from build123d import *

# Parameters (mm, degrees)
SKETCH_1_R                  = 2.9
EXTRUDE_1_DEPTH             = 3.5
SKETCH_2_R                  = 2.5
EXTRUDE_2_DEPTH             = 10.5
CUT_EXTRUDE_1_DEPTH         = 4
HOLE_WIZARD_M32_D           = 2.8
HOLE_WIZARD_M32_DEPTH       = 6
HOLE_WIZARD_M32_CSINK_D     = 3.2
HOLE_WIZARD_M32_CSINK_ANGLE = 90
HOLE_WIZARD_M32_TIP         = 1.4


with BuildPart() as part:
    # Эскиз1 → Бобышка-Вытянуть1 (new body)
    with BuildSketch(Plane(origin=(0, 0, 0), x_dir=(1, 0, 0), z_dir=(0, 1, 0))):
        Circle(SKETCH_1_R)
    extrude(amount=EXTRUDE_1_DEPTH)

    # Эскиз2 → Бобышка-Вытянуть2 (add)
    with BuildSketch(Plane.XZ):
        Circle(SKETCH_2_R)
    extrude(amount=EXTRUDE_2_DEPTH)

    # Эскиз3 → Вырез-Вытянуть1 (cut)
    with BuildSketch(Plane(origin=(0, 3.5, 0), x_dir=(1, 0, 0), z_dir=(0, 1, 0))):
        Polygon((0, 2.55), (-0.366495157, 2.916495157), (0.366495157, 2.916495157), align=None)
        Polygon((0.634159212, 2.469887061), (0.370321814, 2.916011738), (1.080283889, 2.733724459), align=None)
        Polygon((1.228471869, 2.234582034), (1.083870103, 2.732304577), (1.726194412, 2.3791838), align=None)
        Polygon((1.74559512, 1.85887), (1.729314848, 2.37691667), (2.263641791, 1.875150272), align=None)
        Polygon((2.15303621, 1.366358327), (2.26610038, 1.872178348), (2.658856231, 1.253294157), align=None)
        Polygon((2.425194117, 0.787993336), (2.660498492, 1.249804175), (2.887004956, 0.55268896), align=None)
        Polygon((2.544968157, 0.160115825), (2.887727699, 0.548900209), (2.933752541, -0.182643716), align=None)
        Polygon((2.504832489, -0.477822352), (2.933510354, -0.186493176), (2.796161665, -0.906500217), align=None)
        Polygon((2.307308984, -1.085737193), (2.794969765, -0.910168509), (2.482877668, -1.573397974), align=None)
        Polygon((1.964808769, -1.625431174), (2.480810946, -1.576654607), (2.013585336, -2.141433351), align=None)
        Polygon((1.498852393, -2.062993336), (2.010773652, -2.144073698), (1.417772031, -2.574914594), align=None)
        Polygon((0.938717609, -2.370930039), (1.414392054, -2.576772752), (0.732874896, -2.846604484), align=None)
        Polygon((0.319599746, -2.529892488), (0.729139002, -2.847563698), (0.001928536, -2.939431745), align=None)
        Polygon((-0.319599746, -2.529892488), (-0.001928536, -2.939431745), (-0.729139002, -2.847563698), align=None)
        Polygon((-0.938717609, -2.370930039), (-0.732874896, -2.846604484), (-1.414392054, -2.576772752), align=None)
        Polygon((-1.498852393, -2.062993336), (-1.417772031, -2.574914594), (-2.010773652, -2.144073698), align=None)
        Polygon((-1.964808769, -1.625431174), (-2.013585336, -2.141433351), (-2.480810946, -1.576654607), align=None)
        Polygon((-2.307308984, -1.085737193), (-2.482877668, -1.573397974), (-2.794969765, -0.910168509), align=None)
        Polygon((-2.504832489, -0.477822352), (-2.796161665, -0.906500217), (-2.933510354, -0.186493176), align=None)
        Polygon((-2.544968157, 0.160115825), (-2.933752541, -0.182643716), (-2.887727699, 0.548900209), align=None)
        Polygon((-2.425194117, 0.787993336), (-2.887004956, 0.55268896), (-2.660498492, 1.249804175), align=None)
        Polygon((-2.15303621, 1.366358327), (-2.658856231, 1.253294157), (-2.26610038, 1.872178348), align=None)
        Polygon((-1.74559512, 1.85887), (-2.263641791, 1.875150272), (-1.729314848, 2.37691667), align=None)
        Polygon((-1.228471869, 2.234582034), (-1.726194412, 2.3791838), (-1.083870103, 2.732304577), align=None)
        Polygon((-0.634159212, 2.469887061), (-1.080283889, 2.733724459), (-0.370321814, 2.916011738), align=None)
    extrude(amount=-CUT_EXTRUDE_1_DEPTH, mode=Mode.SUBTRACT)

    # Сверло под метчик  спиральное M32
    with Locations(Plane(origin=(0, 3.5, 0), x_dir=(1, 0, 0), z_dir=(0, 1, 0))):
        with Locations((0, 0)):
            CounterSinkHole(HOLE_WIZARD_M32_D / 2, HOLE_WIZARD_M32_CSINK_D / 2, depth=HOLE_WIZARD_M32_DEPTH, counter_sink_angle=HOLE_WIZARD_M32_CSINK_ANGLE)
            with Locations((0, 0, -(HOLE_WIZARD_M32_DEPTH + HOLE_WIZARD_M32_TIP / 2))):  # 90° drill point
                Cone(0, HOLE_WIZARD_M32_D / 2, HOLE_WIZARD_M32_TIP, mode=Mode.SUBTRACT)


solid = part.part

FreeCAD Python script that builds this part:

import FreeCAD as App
import Part
import Sketcher

V = App.Vector
Q = App.Units.Quantity


def add_polygon(sketch, points):
    """Adds a closed chain of lines whose ends are joined by coincident constraints."""
    first, n = sketch.GeometryCount, len(points)
    for a, b in zip(points, points[1:] + points[:1]):
        sketch.addGeometry(Part.LineSegment(App.Vector(*a, 0), App.Vector(*b, 0)), False)
    for i in range(n):
        sketch.addConstraint(Sketcher.Constraint("Coincident", first + i, 2, first + (i + 1) % n, 1))

doc = App.newDocument("Part")
params = doc.addObject("Spreadsheet::Sheet", "Params")
for row, (alias, value) in enumerate([
    ("sketch1_diameter", "5.8 mm"),
    ("pad1_length", "3.5 mm"),
    ("sketch2_diameter", "5 mm"),
    ("pad2_length", "10.5 mm"),
    ("pocket1_length", "4 mm"),
    ("sketch4_diameter", "2.8 mm"),
    ("hole_diameter", "2.8 mm"),
    ("hole_depth", "6 mm"),
    ("hole_csink_diameter", "3.2 mm"),
], start=1):
    params.set(f"A{row}", alias)
    params.set(f"B{row}", "=" + value)
    params.setAlias(f"B{row}", alias)

body = doc.addObject("PartDesign::Body", "Body")

# Sketch on XZ plane
sketch1 = body.newObject("Sketcher::SketchObject", "Sketch")
sketch1.AttachmentSupport = (doc.getObject("XZ_Plane"), [""])
sketch1.MapMode = "FlatFace"
sketch1.addGeometry(Part.Circle(V(0, 0, 0), V(0, 0, 1), 2.9), False)
sketch1.addConstraint(Sketcher.Constraint("Coincident", 0, 3, -1, 1))
sketch1.addConstraint(Sketcher.Constraint("Diameter", 0, 5.8))
sketch1.setExpression("Constraints[1]", "Params.sketch1_diameter")
pad1 = body.newObject("PartDesign::Pad", "Pad")
pad1.Profile = sketch1
pad1.setExpression("Length", "Params.pad1_length")
pad1.Reversed = True

# Sketch on XZ plane
sketch2 = body.newObject("Sketcher::SketchObject", "Sketch001")
sketch2.AttachmentSupport = (doc.getObject("XZ_Plane"), [""])
sketch2.MapMode = "FlatFace"
sketch2.addGeometry(Part.Circle(V(0, 0, 0), V(0, 0, 1), 2.5), False)
sketch2.addConstraint(Sketcher.Constraint("Coincident", 0, 3, -1, 1))
sketch2.addConstraint(Sketcher.Constraint("Diameter", 0, 5.0))
sketch2.setExpression("Constraints[1]", "Params.sketch2_diameter")
pad2 = body.newObject("PartDesign::Pad", "Pad001")
pad2.Profile = sketch2
pad2.setExpression("Length", "Params.pad2_length")

# Sketch on XZ plane
sketch3 = body.newObject("Sketcher::SketchObject", "Sketch002")
sketch3.AttachmentSupport = (doc.getObject("XZ_Plane"), [""])
sketch3.MapMode = "FlatFace"
sketch3.AttachmentOffset = App.Placement(V(0, 0, -3.5), App.Rotation())
add_polygon(sketch3, [(-0.366495, -2.916495), (0, -2.55), (0.366495, -2.916495)])  # lines 0-2
add_polygon(sketch3, [(0.370322, -2.916012), (0.634159, -2.469887), (1.080284, -2.733724)])  # lines 3-5
add_polygon(sketch3, [(1.08387, -2.732305), (1.228472, -2.234582), (1.726194, -2.379184)])  # lines 6-8
add_polygon(sketch3, [(1.729315, -2.376917), (1.745595, -1.85887), (2.263642, -1.87515)])  # lines 9-11
add_polygon(sketch3, [(2.2661, -1.872178), (2.153036, -1.366358), (2.658856, -1.253294)])  # lines 12-14
add_polygon(sketch3, [(2.660498, -1.249804), (2.425194, -0.787993), (2.887005, -0.552689)])  # lines 15-17
add_polygon(sketch3, [(2.887728, -0.5489), (2.544968, -0.160116), (2.933753, 0.182644)])  # lines 18-20
add_polygon(sketch3, [(2.93351, 0.186493), (2.504832, 0.477822), (2.796162, 0.9065)])  # lines 21-23
add_polygon(sketch3, [(2.79497, 0.910169), (2.307309, 1.085737), (2.482878, 1.573398)])  # lines 24-26
add_polygon(sketch3, [(2.480811, 1.576655), (1.964809, 1.625431), (2.013585, 2.141433)])  # lines 27-29
add_polygon(sketch3, [(2.010774, 2.144074), (1.498852, 2.062993), (1.417772, 2.574915)])  # lines 30-32
add_polygon(sketch3, [(1.414392, 2.576773), (0.938718, 2.37093), (0.732875, 2.846604)])  # lines 33-35
add_polygon(sketch3, [(0.729139, 2.847564), (0.3196, 2.529892), (0.001929, 2.939432)])  # lines 36-38
add_polygon(sketch3, [(-0.001929, 2.939432), (-0.3196, 2.529892), (-0.729139, 2.847564)])  # lines 39-41
add_polygon(sketch3, [(-0.732875, 2.846604), (-0.938718, 2.37093), (-1.414392, 2.576773)])  # lines 42-44
add_polygon(sketch3, [(-1.417772, 2.574915), (-1.498852, 2.062993), (-2.010774, 2.144074)])  # lines 45-47
add_polygon(sketch3, [(-2.013585, 2.141433), (-1.964809, 1.625431), (-2.480811, 1.576655)])  # lines 48-50
add_polygon(sketch3, [(-2.482878, 1.573398), (-2.307309, 1.085737), (-2.79497, 0.910169)])  # lines 51-53
add_polygon(sketch3, [(-2.796162, 0.9065), (-2.504832, 0.477822), (-2.93351, 0.186493)])  # lines 54-56
add_polygon(sketch3, [(-2.933753, 0.182644), (-2.544968, -0.160116), (-2.887728, -0.5489)])  # lines 57-59
add_polygon(sketch3, [(-2.887005, -0.552689), (-2.425194, -0.787993), (-2.660498, -1.249804)])  # lines 60-62
add_polygon(sketch3, [(-2.658856, -1.253294), (-2.153036, -1.366358), (-2.2661, -1.872178)])  # lines 63-65
add_polygon(sketch3, [(-2.263642, -1.87515), (-1.745595, -1.85887), (-1.729315, -2.376917)])  # lines 66-68
add_polygon(sketch3, [(-1.726194, -2.379184), (-1.228472, -2.234582), (-1.08387, -2.732305)])  # lines 69-71
add_polygon(sketch3, [(-1.080284, -2.733724), (-0.634159, -2.469887), (-0.370322, -2.916012)])  # lines 72-74
sketch3.addConstraint(Sketcher.Constraint("Horizontal", 2))
sketch3.addConstraint(Sketcher.Constraint("Symmetric", 36, 2, 39, 2, -2))
sketch3.addConstraint(Sketcher.Constraint("Symmetric", 38, 2, 40, 2, -2))
sketch3.addConstraint(Sketcher.Constraint("Symmetric", 37, 2, 41, 2, -2))
sketch3.addConstraint(Sketcher.Constraint("Symmetric", 33, 2, 42, 2, -2))
sketch3.addConstraint(Sketcher.Constraint("Symmetric", 35, 2, 43, 2, -2))
sketch3.addConstraint(Sketcher.Constraint("Symmetric", 34, 2, 44, 2, -2))
sketch3.addConstraint(Sketcher.Constraint("Symmetric", 30, 2, 45, 2, -2))
sketch3.addConstraint(Sketcher.Constraint("Symmetric", 32, 2, 46, 2, -2))
sketch3.addConstraint(Sketcher.Constraint("Symmetric", 31, 2, 47, 2, -2))
sketch3.addConstraint(Sketcher.Constraint("Symmetric", 27, 2, 48, 2, -2))
sketch3.addConstraint(Sketcher.Constraint("Symmetric", 29, 2, 49, 2, -2))
sketch3.addConstraint(Sketcher.Constraint("Symmetric", 28, 2, 50, 2, -2))
sketch3.addConstraint(Sketcher.Constraint("Symmetric", 24, 2, 51, 2, -2))
sketch3.addConstraint(Sketcher.Constraint("Symmetric", 26, 2, 52, 2, -2))
sketch3.addConstraint(Sketcher.Constraint("Symmetric", 25, 2, 53, 2, -2))
sketch3.addConstraint(Sketcher.Constraint("Symmetric", 21, 2, 54, 2, -2))
sketch3.addConstraint(Sketcher.Constraint("Symmetric", 23, 2, 55, 2, -2))
sketch3.addConstraint(Sketcher.Constraint("Symmetric", 22, 2, 56, 2, -2))
sketch3.addConstraint(Sketcher.Constraint("Symmetric", 18, 2, 57, 2, -2))
sketch3.addConstraint(Sketcher.Constraint("Symmetric", 20, 2, 58, 2, -2))
sketch3.addConstraint(Sketcher.Constraint("Symmetric", 19, 2, 59, 2, -2))
sketch3.addConstraint(Sketcher.Constraint("Symmetric", 15, 2, 60, 2, -2))
sketch3.addConstraint(Sketcher.Constraint("Symmetric", 17, 2, 61, 2, -2))
sketch3.addConstraint(Sketcher.Constraint("Symmetric", 16, 2, 62, 2, -2))
sketch3.addConstraint(Sketcher.Constraint("Symmetric", 12, 2, 63, 2, -2))
sketch3.addConstraint(Sketcher.Constraint("Symmetric", 14, 2, 64, 2, -2))
sketch3.addConstraint(Sketcher.Constraint("Symmetric", 13, 2, 65, 2, -2))
sketch3.addConstraint(Sketcher.Constraint("Symmetric", 9, 2, 66, 2, -2))
sketch3.addConstraint(Sketcher.Constraint("Symmetric", 11, 2, 67, 2, -2))
sketch3.addConstraint(Sketcher.Constraint("Symmetric", 10, 2, 68, 2, -2))
sketch3.addConstraint(Sketcher.Constraint("Symmetric", 6, 2, 69, 2, -2))
sketch3.addConstraint(Sketcher.Constraint("Symmetric", 8, 2, 70, 2, -2))
sketch3.addConstraint(Sketcher.Constraint("Symmetric", 7, 2, 71, 2, -2))
sketch3.addConstraint(Sketcher.Constraint("Symmetric", 3, 2, 72, 2, -2))
sketch3.addConstraint(Sketcher.Constraint("Symmetric", 5, 2, 73, 2, -2))
sketch3.addConstraint(Sketcher.Constraint("Symmetric", 4, 2, 74, 2, -2))
sketch3.addConstraint(Sketcher.Constraint("PointOnObject", 0, 2, -2))
sketch3.addConstraint(Sketcher.Constraint("Perpendicular", 0, 1))
sketch3.addConstraint(Sketcher.Constraint("Perpendicular", 3, 4))
sketch3.addConstraint(Sketcher.Constraint("Perpendicular", 6, 7))
sketch3.addConstraint(Sketcher.Constraint("Perpendicular", 9, 10))
sketch3.addConstraint(Sketcher.Constraint("Perpendicular", 12, 13))
sketch3.addConstraint(Sketcher.Constraint("Perpendicular", 15, 16))
sketch3.addConstraint(Sketcher.Constraint("Perpendicular", 18, 19))
sketch3.addConstraint(Sketcher.Constraint("Perpendicular", 21, 22))
sketch3.addConstraint(Sketcher.Constraint("Perpendicular", 24, 25))
sketch3.addConstraint(Sketcher.Constraint("Perpendicular", 27, 28))
sketch3.addConstraint(Sketcher.Constraint("Perpendicular", 30, 31))
sketch3.addConstraint(Sketcher.Constraint("Perpendicular", 33, 34))
sketch3.addConstraint(Sketcher.Constraint("Perpendicular", 36, 37))
sketch3.addConstraint(Sketcher.Constraint("Equal", 0, 1))
sketch3.addConstraint(Sketcher.Constraint("Equal", 1, 3))
sketch3.addConstraint(Sketcher.Constraint("Equal", 3, 4))
sketch3.addConstraint(Sketcher.Constraint("Equal", 4, 6))
sketch3.addConstraint(Sketcher.Constraint("Equal", 6, 7))
sketch3.addConstraint(Sketcher.Constraint("Equal", 7, 9))
sketch3.addConstraint(Sketcher.Constraint("Equal", 9, 10))
sketch3.addConstraint(Sketcher.Constraint("Equal", 10, 12))
sketch3.addConstraint(Sketcher.Constraint("Equal", 12, 13))
sketch3.addConstraint(Sketcher.Constraint("Equal", 13, 15))
sketch3.addConstraint(Sketcher.Constraint("Equal", 15, 16))
sketch3.addConstraint(Sketcher.Constraint("Equal", 16, 18))
sketch3.addConstraint(Sketcher.Constraint("Equal", 18, 19))
sketch3.addConstraint(Sketcher.Constraint("Equal", 19, 21))
sketch3.addConstraint(Sketcher.Constraint("Equal", 21, 22))
sketch3.addConstraint(Sketcher.Constraint("Equal", 22, 24))
sketch3.addConstraint(Sketcher.Constraint("Equal", 24, 25))
sketch3.addConstraint(Sketcher.Constraint("Equal", 25, 27))
sketch3.addConstraint(Sketcher.Constraint("Equal", 27, 28))
sketch3.addConstraint(Sketcher.Constraint("Equal", 28, 30))
sketch3.addConstraint(Sketcher.Constraint("Equal", 30, 31))
sketch3.addConstraint(Sketcher.Constraint("Equal", 31, 33))
sketch3.addConstraint(Sketcher.Constraint("Equal", 33, 34))
sketch3.addConstraint(Sketcher.Constraint("Equal", 34, 36))
sketch3.addConstraint(Sketcher.Constraint("Equal", 36, 37))
sketch3.addConstraint(Sketcher.Constraint("Angle", 15, Q("117 deg")))
sketch3.addConstraint(Sketcher.Constraint("Angle", 30, Q("-171 deg")))
sketch3.addConstraint(Sketcher.Constraint("Angle", 3, Q("59.4 deg")))
sketch3.addConstraint(Sketcher.Constraint("Angle", 6, Q("73.8 deg")))
sketch3.addConstraint(Sketcher.Constraint("Angle", 9, Q("88.2 deg")))
sketch3.addConstraint(Sketcher.Constraint("Angle", 12, Q("102.6 deg")))
sketch3.addConstraint(Sketcher.Constraint("Angle", 18, Q("131.4 deg")))
sketch3.addConstraint(Sketcher.Constraint("Angle", 21, Q("145.8 deg")))
sketch3.addConstraint(Sketcher.Constraint("Angle", 24, Q("160.2 deg")))
sketch3.addConstraint(Sketcher.Constraint("Angle", 27, Q("174.6 deg")))
sketch3.addConstraint(Sketcher.Constraint("Angle", 33, Q("-156.6 deg")))
sketch3.addConstraint(Sketcher.Constraint("Angle", 36, Q("-142.2 deg")))
sketch3.addConstraint(Sketcher.Constraint("DistanceY", 0, 2, -1, 1, 2.55))
sketch3.addConstraint(Sketcher.Constraint("DistanceX", 2, 2, 2, 1, 0.73299))
sketch3.addConstraint(Sketcher.Constraint("DistanceX", -1, 1, 14, 2, 2.2661))
sketch3.addConstraint(Sketcher.Constraint("DistanceX", -1, 1, 17, 2, 2.660498))
sketch3.addConstraint(Sketcher.Constraint("DistanceY", 20, 2, -1, 1, 0.5489))
sketch3.addConstraint(Sketcher.Constraint("DistanceY", -1, 1, 22, 2, 0.9065))
sketch3.addConstraint(Sketcher.Constraint("DistanceX", -1, 1, 36, 2, 0.3196))
sketch3.addConstraint(Sketcher.Constraint("DistanceX", -1, 1, 3, 2, 0.634159))
sketch3.addConstraint(Sketcher.Constraint("DistanceY", 5, 2, -1, 1, 2.916012))
sketch3.addConstraint(Sketcher.Constraint("DistanceX", -1, 1, 6, 2, 1.228472))
sketch3.addConstraint(Sketcher.Constraint("DistanceY", 9, 2, -1, 1, 1.85887))
sketch3.addConstraint(Sketcher.Constraint("DistanceX", -1, 1, 10, 2, 2.263642))
sketch3.addConstraint(Sketcher.Constraint("DistanceY", 12, 2, -1, 1, 1.366358))
sketch3.addConstraint(Sketcher.Constraint("DistanceY", 16, 2, -1, 1, 0.552689))
sketch3.addConstraint(Sketcher.Constraint("DistanceX", -1, 1, 18, 2, 2.544968))
sketch3.addConstraint(Sketcher.Constraint("DistanceX", -1, 1, 22, 2, 2.796162))
sketch3.addConstraint(Sketcher.Constraint("DistanceX", -1, 1, 24, 2, 2.307309))
sketch3.addConstraint(Sketcher.Constraint("DistanceY", -1, 1, 26, 2, 0.910169))
sketch3.addConstraint(Sketcher.Constraint("DistanceX", -1, 1, 27, 2, 1.964809))
sketch3.addConstraint(Sketcher.Constraint("DistanceY", -1, 1, 27, 2, 1.625431))
sketch3.addConstraint(Sketcher.Constraint("DistanceY", -1, 1, 33, 2, 2.37093))
sketch3.addConstraint(Sketcher.Constraint("DistanceY", -1, 1, 37, 2, 2.939432))
sketch3.addConstraint(Sketcher.Constraint("DistanceY", 6, 2, -1, 1, 2.234582))
sketch3.addConstraint(Sketcher.Constraint("DistanceX", -1, 1, 30, 2, 1.498852))
sketch3.addConstraint(Sketcher.Constraint("DistanceY", -1, 1, 30, 2, 2.062993))
sketch3.addConstraint(Sketcher.Constraint("DistanceX", -1, 1, 33, 2, 0.938718))
pocket1 = body.newObject("PartDesign::Pocket", "Pocket")
pocket1.Profile = sketch3
pocket1.setExpression("Length", "Params.pocket1_length")
pocket1.Reversed = True

# Sketch on XZ plane
sketch4 = body.newObject("Sketcher::SketchObject", "Sketch003")
sketch4.AttachmentSupport = (doc.getObject("XZ_Plane"), [""])
sketch4.MapMode = "FlatFace"
sketch4.AttachmentOffset = App.Placement(V(0, 0, -3.5), App.Rotation())
sketch4.addGeometry(Part.Circle(V(0, 0, 0), V(0, 0, 1), 1.4), False)
sketch4.addConstraint(Sketcher.Constraint("Coincident", 0, 3, -1, 1))
sketch4.addConstraint(Sketcher.Constraint("Diameter", 0, 2.8))
sketch4.setExpression("Constraints[1]", "Params.sketch4_diameter")
doc.recompute()
hole = body.newObject("PartDesign::Hole", "Hole")
hole.Profile = sketch4
hole.ThreadType = "None"
hole.setExpression("Diameter", "Params.hole_diameter")
hole.DepthType = "Dimension"
hole.setExpression("Depth", "Params.hole_depth")
hole.DrillPoint = "Angled"
hole.DrillPointAngle = 90
hole.HoleCutType = "Countersink"
hole.setExpression("HoleCutDiameter", "Params.hole_csink_diameter")
hole.HoleCutCountersinkAngle = 90
hole.Reversed = True

doc.recompute()
